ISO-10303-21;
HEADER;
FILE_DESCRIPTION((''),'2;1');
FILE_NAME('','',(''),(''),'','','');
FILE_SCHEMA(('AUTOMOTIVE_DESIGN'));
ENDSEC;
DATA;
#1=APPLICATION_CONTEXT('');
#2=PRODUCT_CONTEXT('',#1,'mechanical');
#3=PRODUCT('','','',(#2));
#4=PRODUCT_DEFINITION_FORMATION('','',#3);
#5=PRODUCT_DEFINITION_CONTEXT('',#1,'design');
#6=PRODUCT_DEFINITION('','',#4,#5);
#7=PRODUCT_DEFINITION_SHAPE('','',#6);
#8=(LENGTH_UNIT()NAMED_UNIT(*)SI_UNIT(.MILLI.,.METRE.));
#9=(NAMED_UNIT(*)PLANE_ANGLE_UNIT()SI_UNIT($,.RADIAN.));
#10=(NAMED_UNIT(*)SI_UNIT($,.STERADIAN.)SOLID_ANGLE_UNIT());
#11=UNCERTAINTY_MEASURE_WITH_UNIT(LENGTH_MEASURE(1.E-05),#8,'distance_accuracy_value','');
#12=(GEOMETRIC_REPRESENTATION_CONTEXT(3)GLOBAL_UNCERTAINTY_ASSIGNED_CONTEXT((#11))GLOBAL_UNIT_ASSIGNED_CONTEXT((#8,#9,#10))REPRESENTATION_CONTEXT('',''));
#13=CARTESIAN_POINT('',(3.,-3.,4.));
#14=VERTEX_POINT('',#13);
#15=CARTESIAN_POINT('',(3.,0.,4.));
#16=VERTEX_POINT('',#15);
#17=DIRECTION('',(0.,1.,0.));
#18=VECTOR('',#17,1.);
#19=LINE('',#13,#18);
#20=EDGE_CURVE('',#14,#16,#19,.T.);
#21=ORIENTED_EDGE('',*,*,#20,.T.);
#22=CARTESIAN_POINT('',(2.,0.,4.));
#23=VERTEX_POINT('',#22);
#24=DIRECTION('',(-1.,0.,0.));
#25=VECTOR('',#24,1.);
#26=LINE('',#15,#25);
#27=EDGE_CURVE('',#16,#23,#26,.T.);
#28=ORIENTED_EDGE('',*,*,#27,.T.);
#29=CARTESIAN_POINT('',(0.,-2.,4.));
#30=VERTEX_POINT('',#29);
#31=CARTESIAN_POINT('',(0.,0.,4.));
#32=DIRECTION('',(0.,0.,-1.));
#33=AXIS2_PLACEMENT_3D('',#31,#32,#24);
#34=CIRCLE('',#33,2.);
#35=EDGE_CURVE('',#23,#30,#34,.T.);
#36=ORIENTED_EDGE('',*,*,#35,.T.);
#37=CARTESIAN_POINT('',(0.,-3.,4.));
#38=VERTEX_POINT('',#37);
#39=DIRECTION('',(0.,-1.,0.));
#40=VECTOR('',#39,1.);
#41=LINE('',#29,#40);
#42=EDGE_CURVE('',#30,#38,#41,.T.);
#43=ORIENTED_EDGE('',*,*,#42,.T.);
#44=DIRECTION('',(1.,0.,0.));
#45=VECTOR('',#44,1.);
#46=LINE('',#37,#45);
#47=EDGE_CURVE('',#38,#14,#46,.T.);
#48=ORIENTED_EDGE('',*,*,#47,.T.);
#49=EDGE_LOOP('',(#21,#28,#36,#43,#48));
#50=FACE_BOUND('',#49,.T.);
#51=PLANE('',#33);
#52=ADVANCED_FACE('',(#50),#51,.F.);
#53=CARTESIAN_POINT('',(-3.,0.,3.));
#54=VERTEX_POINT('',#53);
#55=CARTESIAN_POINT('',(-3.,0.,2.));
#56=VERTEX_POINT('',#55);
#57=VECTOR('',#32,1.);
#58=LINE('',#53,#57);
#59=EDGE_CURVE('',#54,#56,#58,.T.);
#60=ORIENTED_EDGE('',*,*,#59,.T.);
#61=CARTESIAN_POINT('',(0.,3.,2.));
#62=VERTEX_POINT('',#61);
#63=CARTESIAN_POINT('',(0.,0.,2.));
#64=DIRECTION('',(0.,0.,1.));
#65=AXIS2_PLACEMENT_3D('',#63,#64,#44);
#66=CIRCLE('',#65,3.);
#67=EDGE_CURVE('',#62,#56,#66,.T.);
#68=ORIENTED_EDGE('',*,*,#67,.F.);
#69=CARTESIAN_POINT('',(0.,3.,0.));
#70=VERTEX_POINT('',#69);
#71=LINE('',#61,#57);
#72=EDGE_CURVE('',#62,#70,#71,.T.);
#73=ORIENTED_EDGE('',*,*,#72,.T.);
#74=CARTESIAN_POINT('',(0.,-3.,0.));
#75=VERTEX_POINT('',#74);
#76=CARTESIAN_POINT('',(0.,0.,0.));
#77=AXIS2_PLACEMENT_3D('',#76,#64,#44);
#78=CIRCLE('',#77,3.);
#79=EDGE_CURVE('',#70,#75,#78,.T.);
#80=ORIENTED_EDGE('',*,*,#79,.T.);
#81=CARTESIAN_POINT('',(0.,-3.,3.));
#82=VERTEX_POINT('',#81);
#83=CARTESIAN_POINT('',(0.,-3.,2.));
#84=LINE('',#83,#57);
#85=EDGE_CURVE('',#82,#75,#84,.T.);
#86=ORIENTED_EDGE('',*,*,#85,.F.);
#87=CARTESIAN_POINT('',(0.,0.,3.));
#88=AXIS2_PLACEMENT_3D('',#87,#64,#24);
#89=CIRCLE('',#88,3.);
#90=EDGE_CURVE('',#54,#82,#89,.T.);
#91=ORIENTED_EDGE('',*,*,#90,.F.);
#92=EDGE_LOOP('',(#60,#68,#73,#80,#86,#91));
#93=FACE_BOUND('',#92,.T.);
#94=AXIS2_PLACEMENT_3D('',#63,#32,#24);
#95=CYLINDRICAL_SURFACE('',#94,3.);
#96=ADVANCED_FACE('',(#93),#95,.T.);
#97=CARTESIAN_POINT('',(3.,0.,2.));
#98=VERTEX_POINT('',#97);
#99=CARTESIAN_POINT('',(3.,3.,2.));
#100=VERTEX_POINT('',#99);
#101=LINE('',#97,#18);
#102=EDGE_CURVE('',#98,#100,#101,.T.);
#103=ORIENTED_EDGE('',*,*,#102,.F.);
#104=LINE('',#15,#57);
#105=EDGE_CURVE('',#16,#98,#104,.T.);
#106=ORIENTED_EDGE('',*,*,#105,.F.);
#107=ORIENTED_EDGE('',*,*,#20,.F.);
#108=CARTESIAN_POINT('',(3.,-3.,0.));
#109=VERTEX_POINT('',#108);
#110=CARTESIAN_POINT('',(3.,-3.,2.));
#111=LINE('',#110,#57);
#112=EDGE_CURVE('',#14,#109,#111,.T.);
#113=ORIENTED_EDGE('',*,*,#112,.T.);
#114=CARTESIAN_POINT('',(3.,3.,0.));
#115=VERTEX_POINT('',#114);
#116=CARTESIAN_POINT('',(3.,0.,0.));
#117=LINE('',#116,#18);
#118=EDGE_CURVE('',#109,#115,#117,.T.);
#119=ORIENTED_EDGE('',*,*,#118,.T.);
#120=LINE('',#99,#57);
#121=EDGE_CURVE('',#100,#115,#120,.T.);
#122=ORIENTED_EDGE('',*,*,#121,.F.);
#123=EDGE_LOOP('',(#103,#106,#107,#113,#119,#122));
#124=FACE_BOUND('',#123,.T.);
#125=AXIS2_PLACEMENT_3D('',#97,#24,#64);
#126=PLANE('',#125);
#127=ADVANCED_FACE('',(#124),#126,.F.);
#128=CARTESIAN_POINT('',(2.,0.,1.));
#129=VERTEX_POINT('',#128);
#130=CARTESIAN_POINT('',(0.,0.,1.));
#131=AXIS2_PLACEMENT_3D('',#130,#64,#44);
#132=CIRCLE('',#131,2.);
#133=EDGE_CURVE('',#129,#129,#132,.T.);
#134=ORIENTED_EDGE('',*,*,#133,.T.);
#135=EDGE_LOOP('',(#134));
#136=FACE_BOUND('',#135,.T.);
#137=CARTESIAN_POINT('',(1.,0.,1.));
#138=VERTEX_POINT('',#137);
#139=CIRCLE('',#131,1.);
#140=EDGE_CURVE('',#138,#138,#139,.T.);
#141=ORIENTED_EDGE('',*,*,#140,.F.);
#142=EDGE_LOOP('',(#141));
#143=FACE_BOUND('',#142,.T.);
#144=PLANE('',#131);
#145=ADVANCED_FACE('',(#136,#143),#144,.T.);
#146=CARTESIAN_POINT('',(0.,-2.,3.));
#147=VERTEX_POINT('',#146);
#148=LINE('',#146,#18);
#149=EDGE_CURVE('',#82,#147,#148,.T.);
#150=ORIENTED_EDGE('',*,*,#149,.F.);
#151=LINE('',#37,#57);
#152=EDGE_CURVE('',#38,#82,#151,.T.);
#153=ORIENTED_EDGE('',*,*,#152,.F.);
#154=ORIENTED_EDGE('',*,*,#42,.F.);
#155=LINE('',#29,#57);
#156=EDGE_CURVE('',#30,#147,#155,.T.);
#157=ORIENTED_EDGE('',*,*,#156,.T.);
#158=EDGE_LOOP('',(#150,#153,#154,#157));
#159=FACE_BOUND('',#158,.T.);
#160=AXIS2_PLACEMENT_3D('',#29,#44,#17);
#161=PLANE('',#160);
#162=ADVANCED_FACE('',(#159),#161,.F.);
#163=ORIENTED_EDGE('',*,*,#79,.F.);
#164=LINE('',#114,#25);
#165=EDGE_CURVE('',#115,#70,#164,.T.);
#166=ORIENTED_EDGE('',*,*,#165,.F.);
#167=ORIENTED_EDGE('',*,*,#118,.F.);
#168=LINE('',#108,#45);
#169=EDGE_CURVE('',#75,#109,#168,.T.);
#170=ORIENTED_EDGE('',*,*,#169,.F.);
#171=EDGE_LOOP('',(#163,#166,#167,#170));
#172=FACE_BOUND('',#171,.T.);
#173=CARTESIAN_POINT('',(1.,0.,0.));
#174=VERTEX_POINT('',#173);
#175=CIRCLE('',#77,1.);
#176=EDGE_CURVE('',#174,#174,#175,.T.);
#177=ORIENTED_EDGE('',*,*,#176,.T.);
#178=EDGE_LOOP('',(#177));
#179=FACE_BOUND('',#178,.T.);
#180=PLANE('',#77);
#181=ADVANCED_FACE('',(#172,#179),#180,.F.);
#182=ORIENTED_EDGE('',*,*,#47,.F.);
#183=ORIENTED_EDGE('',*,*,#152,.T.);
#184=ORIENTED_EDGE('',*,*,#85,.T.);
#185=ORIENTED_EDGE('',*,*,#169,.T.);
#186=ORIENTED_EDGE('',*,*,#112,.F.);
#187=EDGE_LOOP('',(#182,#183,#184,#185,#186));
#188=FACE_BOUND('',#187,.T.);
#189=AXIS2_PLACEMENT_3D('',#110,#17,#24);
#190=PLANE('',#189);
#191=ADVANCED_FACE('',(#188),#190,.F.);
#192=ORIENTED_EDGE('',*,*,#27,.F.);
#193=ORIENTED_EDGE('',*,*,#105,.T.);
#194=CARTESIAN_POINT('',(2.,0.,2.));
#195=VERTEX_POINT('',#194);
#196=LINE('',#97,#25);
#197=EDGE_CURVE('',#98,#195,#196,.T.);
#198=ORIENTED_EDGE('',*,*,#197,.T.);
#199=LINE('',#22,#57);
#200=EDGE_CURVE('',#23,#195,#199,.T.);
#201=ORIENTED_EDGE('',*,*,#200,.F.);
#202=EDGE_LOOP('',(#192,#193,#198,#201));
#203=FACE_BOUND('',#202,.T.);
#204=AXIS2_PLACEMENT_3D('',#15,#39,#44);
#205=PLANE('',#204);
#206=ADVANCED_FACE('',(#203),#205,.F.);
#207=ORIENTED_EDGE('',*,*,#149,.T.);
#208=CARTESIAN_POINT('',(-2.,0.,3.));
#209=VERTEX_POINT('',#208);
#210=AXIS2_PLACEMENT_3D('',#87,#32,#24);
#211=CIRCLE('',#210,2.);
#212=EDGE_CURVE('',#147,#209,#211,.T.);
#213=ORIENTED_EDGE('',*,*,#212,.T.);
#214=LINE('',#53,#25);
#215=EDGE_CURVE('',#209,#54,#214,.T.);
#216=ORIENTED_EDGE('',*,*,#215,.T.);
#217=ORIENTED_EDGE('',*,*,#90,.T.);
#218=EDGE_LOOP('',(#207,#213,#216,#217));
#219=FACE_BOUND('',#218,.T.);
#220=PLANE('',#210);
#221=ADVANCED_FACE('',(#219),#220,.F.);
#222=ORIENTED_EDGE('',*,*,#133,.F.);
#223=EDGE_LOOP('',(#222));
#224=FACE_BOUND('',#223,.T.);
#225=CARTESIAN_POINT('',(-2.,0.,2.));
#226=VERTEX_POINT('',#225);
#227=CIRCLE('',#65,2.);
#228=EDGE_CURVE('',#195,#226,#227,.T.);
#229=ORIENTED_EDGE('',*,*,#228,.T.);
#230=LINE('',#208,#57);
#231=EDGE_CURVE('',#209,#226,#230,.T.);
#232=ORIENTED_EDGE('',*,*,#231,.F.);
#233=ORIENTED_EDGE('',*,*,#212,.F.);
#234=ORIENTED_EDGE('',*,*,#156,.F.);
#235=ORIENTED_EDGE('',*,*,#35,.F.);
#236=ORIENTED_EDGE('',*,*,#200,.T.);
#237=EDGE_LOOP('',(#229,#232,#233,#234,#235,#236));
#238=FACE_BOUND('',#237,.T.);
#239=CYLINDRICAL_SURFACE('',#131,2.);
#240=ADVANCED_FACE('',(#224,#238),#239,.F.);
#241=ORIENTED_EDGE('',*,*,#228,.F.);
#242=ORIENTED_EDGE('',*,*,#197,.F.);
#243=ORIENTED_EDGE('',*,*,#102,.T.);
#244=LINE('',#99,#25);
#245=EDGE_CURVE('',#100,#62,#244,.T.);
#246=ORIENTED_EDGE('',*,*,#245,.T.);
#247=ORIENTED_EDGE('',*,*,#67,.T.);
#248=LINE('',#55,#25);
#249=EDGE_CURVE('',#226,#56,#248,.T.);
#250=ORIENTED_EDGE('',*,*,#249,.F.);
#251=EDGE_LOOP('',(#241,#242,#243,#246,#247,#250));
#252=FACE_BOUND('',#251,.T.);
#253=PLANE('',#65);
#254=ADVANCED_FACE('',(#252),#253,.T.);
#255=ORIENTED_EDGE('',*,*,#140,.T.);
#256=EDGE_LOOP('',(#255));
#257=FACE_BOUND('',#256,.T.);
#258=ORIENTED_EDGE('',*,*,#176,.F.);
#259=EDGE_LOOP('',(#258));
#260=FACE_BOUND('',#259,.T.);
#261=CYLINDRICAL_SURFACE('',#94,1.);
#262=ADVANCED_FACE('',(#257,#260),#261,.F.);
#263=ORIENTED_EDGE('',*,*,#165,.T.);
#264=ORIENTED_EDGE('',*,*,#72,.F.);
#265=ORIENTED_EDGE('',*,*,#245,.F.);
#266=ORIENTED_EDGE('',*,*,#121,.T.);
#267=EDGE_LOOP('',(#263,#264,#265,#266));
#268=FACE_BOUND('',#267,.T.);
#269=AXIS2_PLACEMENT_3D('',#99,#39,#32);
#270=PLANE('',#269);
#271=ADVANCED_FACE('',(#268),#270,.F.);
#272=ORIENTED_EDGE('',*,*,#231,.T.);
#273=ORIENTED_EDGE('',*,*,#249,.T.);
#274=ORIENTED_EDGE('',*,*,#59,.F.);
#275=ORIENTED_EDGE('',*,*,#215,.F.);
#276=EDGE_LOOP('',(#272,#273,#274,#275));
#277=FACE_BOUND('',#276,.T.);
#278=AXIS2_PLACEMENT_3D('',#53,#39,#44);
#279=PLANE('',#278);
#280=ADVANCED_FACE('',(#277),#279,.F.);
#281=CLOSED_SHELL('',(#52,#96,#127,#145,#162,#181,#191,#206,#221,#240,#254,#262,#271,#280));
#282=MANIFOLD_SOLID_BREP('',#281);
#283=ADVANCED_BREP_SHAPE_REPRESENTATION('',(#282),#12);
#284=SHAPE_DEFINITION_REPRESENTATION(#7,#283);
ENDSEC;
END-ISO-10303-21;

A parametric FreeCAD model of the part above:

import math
import FreeCAD as App
import Part
import Sketcher

doc = App.newDocument("Part")
params = doc.addObject("Spreadsheet::Sheet", "Params")
for row, (alias, value) in enumerate([
    ("sketch1_diameter", "2 mm"),
    ("sketch1_radius", "3 mm"),
    ("sketch1_width", "3 mm"),
    ("pad1_length", "2 mm"),
    ("sketch2_diameter", "4 mm"),
    ("pocket1_length", "1 mm"),
    ("sketch3_radius", "2 mm"),
    ("sketch3_width", "3 mm"),
    ("pad2_length", "2 mm"),
    ("sketch4_radius", "3 mm"),
    ("sketch4_radius2", "2 mm"),
    ("pad3_length", "1 mm"),
], start=1):
    params.set(f"A{row}", alias)
    params.set(f"B{row}", "=" + value)
    params.setAlias(f"B{row}", alias)

body = doc.addObject("PartDesign::Body", "Body")

# Sketch on XY plane
sketch1 = body.newObject("Sketcher::SketchObject", "Sketch")
sketch1.AttachmentSupport = (doc.getObject("XY_Plane"), [""])
sketch1.MapMode = "FlatFace"
sketch1.addGeometry(Part.LineSegment(App.Vector(3, 3, 0), App.Vector(0, 3, 0)), False)
sketch1.addGeometry(Part.ArcOfCircle(Part.Circle(App.Vector(0, 0, 0), App.Vector(0, 0, 1), 3), math.radians(90), math.radians(270)), False)
sketch1.addGeometry(Part.LineSegment(App.Vector(0, -3, 0), App.Vector(3, -3, 0)), False)
sketch1.addGeometry(Part.LineSegment(App.Vector(3, -3, 0), App.Vector(3, 3, 0)), False)
sketch1.addGeometry(Part.Circle(App.Vector(0, 0, 0), App.Vector(0, 0, 1), 1), False)
sketch1.addConstraint(Sketcher.Constraint("Tangent", 0, 2, 1, 1))
sketch1.addConstraint(Sketcher.Constraint("Tangent", 1, 2, 2, 1))
sketch1.addConstraint(Sketcher.Constraint("Coincident", 2, 2, 3, 1))
sketch1.addConstraint(Sketcher.Constraint("Coincident", 3, 2, 0, 1))
sketch1.addConstraint(Sketcher.Constraint("Horizontal", 0))
sketch1.addConstraint(Sketcher.Constraint("Horizontal", 2))
sketch1.addConstraint(Sketcher.Constraint("Vertical", 3))
sketch1.addConstraint(Sketcher.Constraint("Coincident", 1, 3, -1, 1))
sketch1.addConstraint(Sketcher.Constraint("Coincident", 4, 3, -1, 1))
sketch1.addConstraint(Sketcher.Constraint("Diameter", 4, 2.0))
sketch1.addConstraint(Sketcher.Constraint("Radius", 1, 3.0))
sketch1.addConstraint(Sketcher.Constraint("DistanceX", 0, 2, 0, 1, 3.0))
sketch1.setExpression("Constraints[9]", "Params.sketch1_diameter")
sketch1.setExpression("Constraints[10]", "Params.sketch1_radius")
sketch1.setExpression("Constraints[11]", "Params.sketch1_width")
pad1 = body.newObject("PartDesign::Pad", "Pad")
pad1.Profile = sketch1
pad1.setExpression("Length", "Params.pad1_length")

# Sketch on XY plane
sketch2 = body.newObject("Sketcher::SketchObject", "Sketch001")
sketch2.AttachmentSupport = (doc.getObject("XY_Plane"), [""])
sketch2.MapMode = "FlatFace"
sketch2.AttachmentOffset = App.Placement(App.Vector(0, 0, 2), App.Rotation())
sketch2.addGeometry(Part.Circle(App.Vector(0, 0, 0), App.Vector(0, 0, 1), 2), False)
sketch2.addConstraint(Sketcher.Constraint("Coincident", 0, 3, -1, 1))
sketch2.addConstraint(Sketcher.Constraint("Diameter", 0, 4.0))
sketch2.setExpression("Constraints[1]", "Params.sketch2_diameter")
pocket1 = body.newObject("PartDesign::Pocket", "Pocket")
pocket1.Profile = sketch2
pocket1.setExpression("Length", "Params.pocket1_length")

# Sketch on XY plane
sketch3 = body.newObject("Sketcher::SketchObject", "Sketch002")
sketch3.AttachmentSupport = (doc.getObject("XY_Plane"), [""])
sketch3.MapMode = "FlatFace"
sketch3.AttachmentOffset = App.Placement(App.Vector(0, 0, 2), App.Rotation())
sketch3.addGeometry(Part.LineSegment(App.Vector(0, -2, 0), App.Vector(0, -3, 0)), False)
sketch3.addGeometry(Part.LineSegment(App.Vector(0, -3, 0), App.Vector(3, -3, 0)), False)
sketch3.addGeometry(Part.LineSegment(App.Vector(3, -3, 0), App.Vector(3, 0, 0)), False)
sketch3.addGeometry(Part.LineSegment(App.Vector(3, 0, 0), App.Vector(2, 0, 0)), False)
sketch3.addGeometry(Part.ArcOfCircle(Part.Circle(App.Vector(0, 0, 0), App.Vector(0, 0, 1), 2), math.radians(-90), math.radians(0)), False)
sketch3.addConstraint(Sketcher.Constraint("Coincident", 0, 2, 1, 1))
sketch3.addConstraint(Sketcher.Constraint("Coincident", 1, 2, 2, 1))
sketch3.addConstraint(Sketcher.Constraint("Coincident", 2, 2, 3, 1))
sketch3.addConstraint(Sketcher.Constraint("Coincident", 3, 2, 4, 2))
sketch3.addConstraint(Sketcher.Constraint("Coincident", 4, 1, 0, 1))
sketch3.addConstraint(Sketcher.Constraint("Vertical", 0))
sketch3.addConstraint(Sketcher.Constraint("Horizontal", 1))
sketch3.addConstraint(Sketcher.Constraint("Vertical", 2))
sketch3.addConstraint(Sketcher.Constraint("Horizontal", 3))
sketch3.addConstraint(Sketcher.Constraint("Coincident", 4, 3, -1, 1))
sketch3.addConstraint(Sketcher.Constraint("PointOnObject", 0, 2, -2))
sketch3.addConstraint(Sketcher.Constraint("PointOnObject", 2, 2, -1))
sketch3.addConstraint(Sketcher.Constraint("Equal", 3, 0))
sketch3.addConstraint(Sketcher.Constraint("Radius", 4, 2.0))
sketch3.addConstraint(Sketcher.Constraint("DistanceX", 1, 1, 1, 2, 3.0))
sketch3.setExpression("Constraints[13]", "Params.sketch3_radius")
sketch3.setExpression("Constraints[14]", "Params.sketch3_width")
pad2 = body.newObject("PartDesign::Pad", "Pad001")
pad2.Profile = sketch3
pad2.setExpression("Length", "Params.pad2_length")

# Sketch on XY plane
sketch4 = body.newObject("Sketcher::SketchObject", "Sketch003")
sketch4.AttachmentSupport = (doc.getObject("XY_Plane"), [""])
sketch4.MapMode = "FlatFace"
sketch4.AttachmentOffset = App.Placement(App.Vector(0, 0, 2), App.Rotation())
sketch4.addGeometry(Part.LineSegment(App.Vector(-2, 0, 0), App.Vector(-3, 0, 0)), False)
sketch4.addGeometry(Part.ArcOfCircle(Part.Circle(App.Vector(0, 0, 0), App.Vector(0, 0, 1), 3), math.radians(180), math.radians(270)), False)
sketch4.addGeometry(Part.LineSegment(App.Vector(0, -3, 0), App.Vector(0, -2, 0)), False)
sketch4.addGeometry(Part.ArcOfCircle(Part.Circle(App.Vector(0, 0, 0), App.Vector(0, 0, 1), 2), math.radians(-180), math.radians(-90)), False)
sketch4.addConstraint(Sketcher.Constraint("Coincident", 0, 2, 1, 1))
sketch4.addConstraint(Sketcher.Constraint("Coincident", 1, 2, 2, 1))
sketch4.addConstraint(Sketcher.Constraint("Coincident", 2, 2, 3, 2))
sketch4.addConstraint(Sketcher.Constraint("Coincident", 3, 1, 0, 1))
sketch4.addConstraint(Sketcher.Constraint("Horizontal", 0))
sketch4.addConstraint(Sketcher.Constraint("Vertical", 2))
sketch4.addConstraint(Sketcher.Constraint("Coincident", 1, 3, -1, 1))
sketch4.addConstraint(Sketcher.Constraint("Coincident", 3, 3, -1, 1))
sketch4.addConstraint(Sketcher.Constraint("PointOnObject", 0, 2, -1))
sketch4.addConstraint(Sketcher.Constraint("PointOnObject", 1, 2, -2))
sketch4.addConstraint(Sketcher.Constraint("Radius", 1, 3.0))
sketch4.addConstraint(Sketcher.Constraint("Radius", 3, 2.0))
sketch4.setExpression("Constraints[10]", "Params.sketch4_radius")
sketch4.setExpression("Constraints[11]", "Params.sketch4_radius2")
pad3 = body.newObject("PartDesign::Pad", "Pad002")
pad3.Profile = sketch4
pad3.setExpression("Length", "Params.pad3_length")

doc.recompute()
